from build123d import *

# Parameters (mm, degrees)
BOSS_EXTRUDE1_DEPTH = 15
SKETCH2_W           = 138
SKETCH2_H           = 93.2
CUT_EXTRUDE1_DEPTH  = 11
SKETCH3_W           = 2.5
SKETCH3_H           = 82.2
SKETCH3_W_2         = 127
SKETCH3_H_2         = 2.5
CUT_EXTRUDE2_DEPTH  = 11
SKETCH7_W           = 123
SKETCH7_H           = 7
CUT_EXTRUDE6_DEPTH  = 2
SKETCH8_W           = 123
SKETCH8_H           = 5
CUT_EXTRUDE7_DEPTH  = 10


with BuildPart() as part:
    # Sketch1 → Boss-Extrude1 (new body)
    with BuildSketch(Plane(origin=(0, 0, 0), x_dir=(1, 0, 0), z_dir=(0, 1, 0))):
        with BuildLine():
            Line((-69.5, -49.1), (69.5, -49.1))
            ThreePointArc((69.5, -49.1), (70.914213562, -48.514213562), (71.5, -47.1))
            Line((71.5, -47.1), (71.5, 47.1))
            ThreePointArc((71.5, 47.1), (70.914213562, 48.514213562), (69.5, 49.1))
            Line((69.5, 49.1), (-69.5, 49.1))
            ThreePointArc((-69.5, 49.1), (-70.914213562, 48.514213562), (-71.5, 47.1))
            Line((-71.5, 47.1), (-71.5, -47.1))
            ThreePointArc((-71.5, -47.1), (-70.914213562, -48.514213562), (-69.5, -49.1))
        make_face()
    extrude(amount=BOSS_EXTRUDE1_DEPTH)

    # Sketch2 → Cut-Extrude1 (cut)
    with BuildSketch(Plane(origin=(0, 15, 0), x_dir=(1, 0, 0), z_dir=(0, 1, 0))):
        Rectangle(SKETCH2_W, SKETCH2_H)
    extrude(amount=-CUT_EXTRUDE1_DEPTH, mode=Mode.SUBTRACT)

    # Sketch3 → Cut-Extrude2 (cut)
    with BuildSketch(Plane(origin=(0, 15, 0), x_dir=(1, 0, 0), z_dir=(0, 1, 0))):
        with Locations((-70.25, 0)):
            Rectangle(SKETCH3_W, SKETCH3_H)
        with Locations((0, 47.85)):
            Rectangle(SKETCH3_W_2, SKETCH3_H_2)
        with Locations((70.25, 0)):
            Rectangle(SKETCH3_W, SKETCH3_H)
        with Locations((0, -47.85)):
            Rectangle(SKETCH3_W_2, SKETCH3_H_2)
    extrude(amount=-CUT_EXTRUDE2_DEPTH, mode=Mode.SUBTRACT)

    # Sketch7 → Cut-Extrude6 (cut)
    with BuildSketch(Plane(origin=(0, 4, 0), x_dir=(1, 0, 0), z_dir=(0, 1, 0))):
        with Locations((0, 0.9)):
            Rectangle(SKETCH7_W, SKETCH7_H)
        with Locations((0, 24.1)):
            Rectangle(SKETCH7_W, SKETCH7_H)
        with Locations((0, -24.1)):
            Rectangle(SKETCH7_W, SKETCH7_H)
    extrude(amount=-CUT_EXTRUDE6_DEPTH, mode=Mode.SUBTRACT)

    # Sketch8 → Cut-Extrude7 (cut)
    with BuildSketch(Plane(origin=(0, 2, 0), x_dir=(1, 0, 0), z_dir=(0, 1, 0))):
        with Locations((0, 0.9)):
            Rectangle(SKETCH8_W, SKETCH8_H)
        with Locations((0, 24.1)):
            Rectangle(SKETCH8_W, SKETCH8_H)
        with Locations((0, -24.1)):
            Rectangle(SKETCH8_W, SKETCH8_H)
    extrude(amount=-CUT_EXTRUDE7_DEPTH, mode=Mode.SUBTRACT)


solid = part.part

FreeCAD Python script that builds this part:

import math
import FreeCAD as App
import Part
import Sketcher

doc = App.newDocument("Part")
body = doc.addObject("PartDesign::Body", "Body")

# Sketch on XZ plane
sketch1 = body.newObject("Sketcher::SketchObject", "Sketch")
sketch1.AttachmentSupport = (doc.getObject("XZ_Plane"), [""])
sketch1.MapMode = "FlatFace"
sketch1.addGeometry(Part.LineSegment(App.Vector(-69.5, 49.1, 0), App.Vector(69.5, 49.1, 0)), False)
sketch1.addGeometry(Part.ArcOfCircle(Part.Circle(App.Vector(69.5, 47.1, 0), App.Vector(0, 0, 1), 2), math.radians(0), math.radians(90)), False)
sketch1.addGeometry(Part.LineSegment(App.Vector(71.5, 47.1, 0), App.Vector(71.5, -47.1, 0)), False)
sketch1.addGeometry(Part.ArcOfCircle(Part.Circle(App.Vector(69.5, -47.1, 0), App.Vector(0, 0, 1), 2), math.radians(-90), math.radians(0)), False)
sketch1.addGeometry(Part.LineSegment(App.Vector(69.5, -49.1, 0), App.Vector(-69.5, -49.1, 0)), False)
sketch1.addGeometry(Part.ArcOfCircle(Part.Circle(App.Vector(-69.5, -47.1, 0), App.Vector(0, 0, 1), 2), math.radians(-180), math.radians(-90)), False)
sketch1.addGeometry(Part.LineSegment(App.Vector(-71.5, -47.1, 0), App.Vector(-71.5, 47.1, 0)), False)
sketch1.addGeometry(Part.ArcOfCircle(Part.Circle(App.Vector(-69.5, 47.1, 0), App.Vector(0, 0, 1), 2), math.radians(90), math.radians(180)), False)
sketch1.addConstraint(Sketcher.Constraint("Tangent", 0, 2, 1, 2))
sketch1.addConstraint(Sketcher.Constraint("Tangent", 1, 1, 2, 1))
sketch1.addConstraint(Sketcher.Constraint("Tangent", 2, 2, 3, 2))
sketch1.addConstraint(Sketcher.Constraint("Tangent", 3, 1, 4, 1))
sketch1.addConstraint(Sketcher.Constraint("Tangent", 4, 2, 5, 2))
sketch1.addConstraint(Sketcher.Constraint("Tangent", 5, 1, 6, 1))
sketch1.addConstraint(Sketcher.Constraint("Tangent", 6, 2, 7, 2))
sketch1.addConstraint(Sketcher.Constraint("Tangent", 7, 1, 0, 1))
sketch1.addConstraint(Sketcher.Constraint("Horizontal", 0))
sketch1.addConstraint(Sketcher.Constraint("Vertical", 2))
sketch1.addConstraint(Sketcher.Constraint("Horizontal", 4))
sketch1.addConstraint(Sketcher.Constraint("Vertical", 6))
sketch1.addConstraint(Sketcher.Constraint("Equal", 1, 3))
sketch1.addConstraint(Sketcher.Constraint("Equal", 3, 5))
sketch1.addConstraint(Sketcher.Constraint("Equal", 5, 7))
sketch1.addConstraint(Sketcher.Constraint("Symmetric", 1, 3, 5, 3, -1, 1))
sketch1.addConstraint(Sketcher.Constraint("Radius", 1, 2.0))
sketch1.addConstraint(Sketcher.Constraint("DistanceX", 0, 1, 0, 2, 139.0))
sketch1.addConstraint(Sketcher.Constraint("DistanceY", 2, 2, 2, 1, 94.2))
pad1 = body.newObject("PartDesign::Pad", "Pad")
pad1.Profile = sketch1
pad1.Length = 15
pad1.Reversed = True

# Sketch on XZ plane
sketch2 = body.newObject("Sketcher::SketchObject", "Sketch001")
sketch2.AttachmentSupport = (doc.getObject("XZ_Plane"), [""])
sketch2.MapMode = "FlatFace"
sketch2.AttachmentOffset = App.Placement(App.Vector(0, 0, -15), App.Rotation())
sketch2.addGeometry(Part.LineSegment(App.Vector(-69, -47, 0), App.Vector(-69, 47, 0)), False)
sketch2.addGeometry(Part.LineSegment(App.Vector(-69, 47, 0), App.Vector(69, 47, 0)), False)
sketch2.addGeometry(Part.LineSegment(App.Vector(69, 47, 0), App.Vector(69, -47, 0)), False)
sketch2.addGeometry(Part.LineSegment(App.Vector(69, -47, 0), App.Vector(-69, -47, 0)), False)
sketch2.addConstraint(Sketcher.Constraint("Coincident", 0, 2, 1, 1))
sketch2.addConstraint(Sketcher.Constraint("Coincident", 1, 2, 2, 1))
sketch2.addConstraint(Sketcher.Constraint("Coincident", 2, 2, 3, 1))
sketch2.addConstraint(Sketcher.Constraint("Coincident", 3, 2, 0, 1))
sketch2.addConstraint(Sketcher.Constraint("Vertical", 0))
sketch2.addConstraint(Sketcher.Constraint("Horizontal", 1))
sketch2.addConstraint(Sketcher.Constraint("Vertical", 2))
sketch2.addConstraint(Sketcher.Constraint("Horizontal", 3))
sketch2.addConstraint(Sketcher.Constraint("Symmetric", 0, 2, 2, 2, -1, 1))
sketch2.addConstraint(Sketcher.Constraint("DistanceX", 1, 1, 1, 2, 138.0))
sketch2.addConstraint(Sketcher.Constraint("DistanceY", 0, 1, 0, 2, 93.2))
pocket1 = body.newObject("PartDesign::Pocket", "Pocket")
pocket1.Profile = sketch2
pocket1.Length = 11
pocket1.Reversed = True

# Sketch on XZ plane
sketch3 = body.newObject("Sketcher::SketchObject", "Sketch002")
sketch3.AttachmentSupport = (doc.getObject("XZ_Plane"), [""])
sketch3.MapMode = "FlatFace"
sketch3.AttachmentOffset = App.Placement(App.Vector(0, 0, -15), App.Rotation())
sketch3.addGeometry(Part.LineSegment(App.Vector(-71.5, -41.1, 0), App.Vector(-71.5, 41.1, 0)), False)
sketch3.addGeometry(Part.LineSegment(App.Vector(-71.5, 41.1, 0), App.Vector(-69, 41.1, 0)), False)
sketch3.addGeometry(Part.LineSegment(App.Vector(-69, 41.1, 0), App.Vector(-69, -41.1, 0)), False)
sketch3.addGeometry(Part.LineSegment(App.Vector(-69, -41.1, 0), App.Vector(-71.5, -41.1, 0)), False)
sketch3.addGeometry(Part.LineSegment(App.Vector(-63.5, -49.1, 0), App.Vector(-63.5, -46.6, 0)), False)
sketch3.addGeometry(Part.LineSegment(App.Vector(-63.5, -46.6, 0), App.Vector(63.5, -46.6, 0)), False)
sketch3.addGeometry(Part.LineSegment(App.Vector(63.5, -46.6, 0), App.Vector(63.5, -49.1, 0)), False)
sketch3.addGeometry(Part.LineSegment(App.Vector(63.5, -49.1, 0), App.Vector(-63.5, -49.1, 0)), False)
sketch3.addGeometry(Part.LineSegment(App.Vector(69, -41.1, 0), App.Vector(69, 41.1, 0)), False)
sketch3.addGeometry(Part.LineSegment(App.Vector(69, 41.1, 0), App.Vector(71.5, 41.1, 0)), False)
sketch3.addGeometry(Part.LineSegment(App.Vector(71.5, 41.1, 0), App.Vector(71.5, -41.1, 0)), False)
sketch3.addGeometry(Part.LineSegment(App.Vector(71.5, -41.1, 0), App.Vector(69, -41.1, 0)), False)
sketch3.addGeometry(Part.LineSegment(App.Vector(-63.5, 46.6, 0), App.Vector(-63.5, 49.1, 0)), False)
sketch3.addGeometry(Part.LineSegment(App.Vector(-63.5, 49.1, 0), App.Vector(63.5, 49.1, 0)), False)
sketch3.addGeometry(Part.LineSegment(App.Vector(63.5, 49.1, 0), App.Vector(63.5, 46.6, 0)), False)
sketch3.addGeometry(Part.LineSegment(App.Vector(63.5, 46.6, 0), App.Vector(-63.5, 46.6, 0)), False)
sketch3.addConstraint(Sketcher.Constraint("Coincident", 0, 2, 1, 1))
sketch3.addConstraint(Sketcher.Constraint("Coincident", 1, 2, 2, 1))
sketch3.addConstraint(Sketcher.Constraint("Coincident", 2, 2, 3, 1))
sketch3.addConstraint(Sketcher.Constraint("Coincident", 3, 2, 0, 1))
sketch3.addConstraint(Sketcher.Constraint("Coincident", 4, 2, 5, 1))
sketch3.addConstraint(Sketcher.Constraint("Coincident", 5, 2, 6, 1))
sketch3.addConstraint(Sketcher.Constraint("Coincident", 6, 2, 7, 1))
sketch3.addConstraint(Sketcher.Constraint("Coincident", 7, 2, 4, 1))
sketch3.addConstraint(Sketcher.Constraint("Coincident", 8, 2, 9, 1))
sketch3.addConstraint(Sketcher.Constraint("Coincident", 9, 2, 10, 1))
sketch3.addConstraint(Sketcher.Constraint("Coincident", 10, 2, 11, 1))
sketch3.addConstraint(Sketcher.Constraint("Coincident", 11, 2, 8, 1))
sketch3.addConstraint(Sketcher.Constraint("Coincident", 12, 2, 13, 1))
sketch3.addConstraint(Sketcher.Constraint("Coincident", 13, 2, 14, 1))
sketch3.addConstraint(Sketcher.Constraint("Coincident", 14, 2, 15, 1))
sketch3.addConstraint(Sketcher.Constraint("Coincident", 15, 2, 12, 1))
sketch3.addConstraint(Sketcher.Constraint("Vertical", 0))
sketch3.addConstraint(Sketcher.Constraint("Horizontal", 1))
sketch3.addConstraint(Sketcher.Constraint("Vertical", 2))
sketch3.addConstraint(Sketcher.Constraint("Horizontal", 3))
sketch3.addConstraint(Sketcher.Constraint("Vertical", 4))
sketch3.addConstraint(Sketcher.Constraint("Horizontal", 5))
sketch3.addConstraint(Sketcher.Constraint("Vertical", 6))
sketch3.addConstraint(Sketcher.Constraint("Horizontal", 7))
sketch3.addConstraint(Sketcher.Constraint("Vertical", 8))
sketch3.addConstraint(Sketcher.Constraint("Horizontal", 9))
sketch3.addConstraint(Sketcher.Constraint("Vertical", 10))
sketch3.addConstraint(Sketcher.Constraint("Horizontal", 11))
sketch3.addConstraint(Sketcher.Constraint("Vertical", 12))
sketch3.addConstraint(Sketcher.Constraint("Horizontal", 13))
sketch3.addConstraint(Sketcher.Constraint("Vertical", 14))
sketch3.addConstraint(Sketcher.Constraint("Horizontal", 15))
sketch3.addConstraint(Sketcher.Constraint("Symmetric", 2, 2, 8, 2, -1, 1))
sketch3.addConstraint(Sketcher.Constraint("Symmetric", 0, 2, 10, 2, -1, 1))
sketch3.addConstraint(Sketcher.Constraint("Symmetric", 6, 2, 12, 2, -1, 1))
sketch3.addConstraint(Sketcher.Constraint("Symmetric", 4, 2, 14, 2, -1, 1))
sketch3.addConstraint(Sketcher.Constraint("Horizontal", 1, 2, 8, 2))
sketch3.addConstraint(Sketcher.Constraint("Vertical", 7, 2, 12, 2))
sketch3.addConstraint(Sketcher.Constraint("Equal", 11, 4))
sketch3.addConstraint(Sketcher.Constraint("DistanceX", 5, 1, 5, 2, 127.0))
sketch3.addConstraint(Sketcher.Constraint("DistanceX", 1, 1, 1, 2, 2.5))
sketch3.addConstraint(Sketcher.Constraint("DistanceY", 0, 1, 0, 2, 82.2))
sketch3.addConstraint(Sketcher.Constraint("DistanceX", 1, 2, -1, 1, 69.0))
sketch3.addConstraint(Sketcher.Constraint("DistanceY", 6, 2, 2, 2, 8.0))
pocket2 = body.newObject("PartDesign::Pocket", "Pocket001")
pocket2.Profile = sketch3
pocket2.Length = 11
pocket2.Reversed = True

# Sketch on XZ plane
sketch4 = body.newObject("Sketcher::SketchObject", "Sketch003")
sketch4.AttachmentSupport = (doc.getObject("XZ_Plane"), [""])
sketch4.MapMode = "FlatFace"
sketch4.AttachmentOffset = App.Placement(App.Vector(0, 0, -4), App.Rotation())
sketch4.addGeometry(Part.LineSegment(App.Vector(-62, -4, 0), App.Vector(-62, 3, 0)), False)
sketch4.addGeometry(Part.LineSegment(App.Vector(-62, 3, 0), App.Vector(62, 3, 0)), False)
sketch4.addGeometry(Part.LineSegment(App.Vector(62, 3, 0), App.Vector(62, -4, 0)), False)
sketch4.addGeometry(Part.LineSegment(App.Vector(62, -4, 0), App.Vector(-62, -4, 0)), False)
sketch4.addGeometry(Part.LineSegment(App.Vector(-62, -28, 0), App.Vector(-62, -21, 0)), False)
sketch4.addGeometry(Part.LineSegment(App.Vector(-62, -21, 0), App.Vector(62, -21, 0)), False)
sketch4.addGeometry(Part.LineSegment(App.Vector(62, -21, 0), App.Vector(62, -28, 0)), False)
sketch4.addGeometry(Part.LineSegment(App.Vector(62, -28, 0), App.Vector(-62, -28, 0)), False)
sketch4.addGeometry(Part.LineSegment(App.Vector(-62, 21, 0), App.Vector(-62, 28, 0)), False)
sketch4.addGeometry(Part.LineSegment(App.Vector(-62, 28, 0), App.Vector(62, 28, 0)), False)
sketch4.addGeometry(Part.LineSegment(App.Vector(62, 28, 0), App.Vector(62, 21, 0)), False)
sketch4.addGeometry(Part.LineSegment(App.Vector(62, 21, 0), App.Vector(-62, 21, 0)), False)
sketch4.addConstraint(Sketcher.Constraint("Coincident", 0, 2, 1, 1))
sketch4.addConstraint(Sketcher.Constraint("Coincident", 1, 2, 2, 1))
sketch4.addConstraint(Sketcher.Constraint("Coincident", 2, 2, 3, 1))
sketch4.addConstraint(Sketcher.Constraint("Coincident", 3, 2, 0, 1))
sketch4.addConstraint(Sketcher.Constraint("Coincident", 4, 2, 5, 1))
sketch4.addConstraint(Sketcher.Constraint("Coincident", 5, 2, 6, 1))
sketch4.addConstraint(Sketcher.Constraint("Coincident", 6, 2, 7, 1))
sketch4.addConstraint(Sketcher.Constraint("Coincident", 7, 2, 4, 1))
sketch4.addConstraint(Sketcher.Constraint("Coincident", 8, 2, 9, 1))
sketch4.addConstraint(Sketcher.Constraint("Coincident", 9, 2, 10, 1))
sketch4.addConstraint(Sketcher.Constraint("Coincident", 10, 2, 11, 1))
sketch4.addConstraint(Sketcher.Constraint("Coincident", 11, 2, 8, 1))
sketch4.addConstraint(Sketcher.Constraint("Vertical", 0))
sketch4.addConstraint(Sketcher.Constraint("Horizontal", 1))
sketch4.addConstraint(Sketcher.Constraint("Vertical", 2))
sketch4.addConstraint(Sketcher.Constraint("Horizontal", 3))
sketch4.addConstraint(Sketcher.Constraint("Vertical", 4))
sketch4.addConstraint(Sketcher.Constraint("Horizontal", 5))
sketch4.addConstraint(Sketcher.Constraint("Vertical", 6))
sketch4.addConstraint(Sketcher.Constraint("Horizontal", 7))
sketch4.addConstraint(Sketcher.Constraint("Vertical", 8))
sketch4.addConstraint(Sketcher.Constraint("Horizontal", 9))
sketch4.addConstraint(Sketcher.Constraint("Vertical", 10))
sketch4.addConstraint(Sketcher.Constraint("Horizontal", 11))
sketch4.addConstraint(Sketcher.Constraint("Symmetric", 6, 2, 8, 2, -1, 1))
sketch4.addConstraint(Sketcher.Constraint("Symmetric", 4, 2, 10, 2, -1, 1))
sketch4.addConstraint(Sketcher.Constraint("Vertical", 3, 2, 4, 2))
sketch4.addConstraint(Sketcher.Constraint("Vertical", 2, 2, 5, 2))
sketch4.addConstraint(Sketcher.Constraint("Vertical", 7, 2, 8, 2))
sketch4.addConstraint(Sketcher.Constraint("Equal", 2, 4))
sketch4.addConstraint(Sketcher.Constraint("DistanceX", 1, 1, 1, 2, 123.0))
sketch4.addConstraint(Sketcher.Constraint("DistanceY", 0, 1, 0, 2, 7.0))
sketch4.addConstraint(Sketcher.Constraint("DistanceY", 0, 2, 8, 2, 25.0))
sketch4.addConstraint(Sketcher.Constraint("DistanceY", -1, 1, 0, 2, 2.6))
pocket3 = body.newObject("PartDesign::Pocket", "Pocket002")
pocket3.Profile = sketch4
pocket3.Length = 2
pocket3.Reversed = True

# Sketch on XZ plane
sketch5 = body.newObject("Sketcher::SketchObject", "Sketch004")
sketch5.AttachmentSupport = (doc.getObject("XZ_Plane"), [""])
sketch5.MapMode = "FlatFace"
sketch5.AttachmentOffset = App.Placement(App.Vector(0, 0, -2), App.Rotation())
sketch5.addGeometry(Part.LineSegment(App.Vector(-62, -3, 0), App.Vector(-62, 2, 0)), False)
sketch5.addGeometry(Part.LineSegment(App.Vector(-62, 2, 0), App.Vector(62, 2, 0)), False)
sketch5.addGeometry(Part.LineSegment(App.Vector(62, 2, 0), App.Vector(62, -3, 0)), False)
sketch5.addGeometry(Part.LineSegment(App.Vector(62, -3, 0), App.Vector(-62, -3, 0)), False)
sketch5.addGeometry(Part.LineSegment(App.Vector(-62, -27, 0), App.Vector(-62, -22, 0)), False)
sketch5.addGeometry(Part.LineSegment(App.Vector(-62, -22, 0), App.Vector(62, -22, 0)), False)
sketch5.addGeometry(Part.LineSegment(App.Vector(62, -22, 0), App.Vector(62, -27, 0)), False)
sketch5.addGeometry(Part.LineSegment(App.Vector(62, -27, 0), App.Vector(-62, -27, 0)), False)
sketch5.addGeometry(Part.LineSegment(App.Vector(-62, 22, 0), App.Vector(-62, 27, 0)), False)
sketch5.addGeometry(Part.LineSegment(App.Vector(-62, 27, 0), App.Vector(62, 27, 0)), False)
sketch5.addGeometry(Part.LineSegment(App.Vector(62, 27, 0), App.Vector(62, 22, 0)), False)
sketch5.addGeometry(Part.LineSegment(App.Vector(62, 22, 0), App.Vector(-62, 22, 0)), False)
sketch5.addConstraint(Sketcher.Constraint("Coincident", 0, 2, 1, 1))
sketch5.addConstraint(Sketcher.Constraint("Coincident", 1, 2, 2, 1))
sketch5.addConstraint(Sketcher.Constraint("Coincident", 2, 2, 3, 1))
sketch5.addConstraint(Sketcher.Constraint("Coincident", 3, 2, 0, 1))
sketch5.addConstraint(Sketcher.Constraint("Coincident", 4, 2, 5, 1))
sketch5.addConstraint(Sketcher.Constraint("Coincident", 5, 2, 6, 1))
sketch5.addConstraint(Sketcher.Constraint("Coincident", 6, 2, 7, 1))
sketch5.addConstraint(Sketcher.Constraint("Coincident", 7, 2, 4, 1))
sketch5.addConstraint(Sketcher.Constraint("Coincident", 8, 2, 9, 1))
sketch5.addConstraint(Sketcher.Constraint("Coincident", 9, 2, 10, 1))
sketch5.addConstraint(Sketcher.Constraint("Coincident", 10, 2, 11, 1))
sketch5.addConstraint(Sketcher.Constraint("Coincident", 11, 2, 8, 1))
sketch5.addConstraint(Sketcher.Constraint("Vertical", 0))
sketch5.addConstraint(Sketcher.Constraint("Horizontal", 1))
sketch5.addConstraint(Sketcher.Constraint("Vertical", 2))
sketch5.addConstraint(Sketcher.Constraint("Horizontal", 3))
sketch5.addConstraint(Sketcher.Constraint("Vertical", 4))
sketch5.addConstraint(Sketcher.Constraint("Horizontal", 5))
sketch5.addConstraint(Sketcher.Constraint("Vertical", 6))
sketch5.addConstraint(Sketcher.Constraint("Horizontal", 7))
sketch5.addConstraint(Sketcher.Constraint("Vertical", 8))
sketch5.addConstraint(Sketcher.Constraint("Horizontal", 9))
sketch5.addConstraint(Sketcher.Constraint("Vertical", 10))
sketch5.addConstraint(Sketcher.Constraint("Horizontal", 11))
sketch5.addConstraint(Sketcher.Constraint("Symmetric", 6, 2, 8, 2, -1, 1))
sketch5.addConstraint(Sketcher.Constraint("Symmetric", 4, 2, 10, 2, -1, 1))
sketch5.addConstraint(Sketcher.Constraint("Vertical", 3, 2, 4, 2))
sketch5.addConstraint(Sketcher.Constraint("Vertical", 2, 2, 5, 2))
sketch5.addConstraint(Sketcher.Constraint("Vertical", 7, 2, 8, 2))
sketch5.addConstraint(Sketcher.Constraint("Equal", 2, 4))
sketch5.addConstraint(Sketcher.Constraint("DistanceX", 1, 1, 1, 2, 123.0))
sketch5.addConstraint(Sketcher.Constraint("DistanceY", 0, 1, 0, 2, 5.0))
sketch5.addConstraint(Sketcher.Constraint("DistanceY", 0, 2, 8, 2, 25.0))
sketch5.addConstraint(Sketcher.Constraint("DistanceY", -1, 1, 0, 2, 1.6))
pocket4 = body.newObject("PartDesign::Pocket", "Pocket003")
pocket4.Profile = sketch5
pocket4.Length = 10
pocket4.Reversed = True

doc.recompute()
